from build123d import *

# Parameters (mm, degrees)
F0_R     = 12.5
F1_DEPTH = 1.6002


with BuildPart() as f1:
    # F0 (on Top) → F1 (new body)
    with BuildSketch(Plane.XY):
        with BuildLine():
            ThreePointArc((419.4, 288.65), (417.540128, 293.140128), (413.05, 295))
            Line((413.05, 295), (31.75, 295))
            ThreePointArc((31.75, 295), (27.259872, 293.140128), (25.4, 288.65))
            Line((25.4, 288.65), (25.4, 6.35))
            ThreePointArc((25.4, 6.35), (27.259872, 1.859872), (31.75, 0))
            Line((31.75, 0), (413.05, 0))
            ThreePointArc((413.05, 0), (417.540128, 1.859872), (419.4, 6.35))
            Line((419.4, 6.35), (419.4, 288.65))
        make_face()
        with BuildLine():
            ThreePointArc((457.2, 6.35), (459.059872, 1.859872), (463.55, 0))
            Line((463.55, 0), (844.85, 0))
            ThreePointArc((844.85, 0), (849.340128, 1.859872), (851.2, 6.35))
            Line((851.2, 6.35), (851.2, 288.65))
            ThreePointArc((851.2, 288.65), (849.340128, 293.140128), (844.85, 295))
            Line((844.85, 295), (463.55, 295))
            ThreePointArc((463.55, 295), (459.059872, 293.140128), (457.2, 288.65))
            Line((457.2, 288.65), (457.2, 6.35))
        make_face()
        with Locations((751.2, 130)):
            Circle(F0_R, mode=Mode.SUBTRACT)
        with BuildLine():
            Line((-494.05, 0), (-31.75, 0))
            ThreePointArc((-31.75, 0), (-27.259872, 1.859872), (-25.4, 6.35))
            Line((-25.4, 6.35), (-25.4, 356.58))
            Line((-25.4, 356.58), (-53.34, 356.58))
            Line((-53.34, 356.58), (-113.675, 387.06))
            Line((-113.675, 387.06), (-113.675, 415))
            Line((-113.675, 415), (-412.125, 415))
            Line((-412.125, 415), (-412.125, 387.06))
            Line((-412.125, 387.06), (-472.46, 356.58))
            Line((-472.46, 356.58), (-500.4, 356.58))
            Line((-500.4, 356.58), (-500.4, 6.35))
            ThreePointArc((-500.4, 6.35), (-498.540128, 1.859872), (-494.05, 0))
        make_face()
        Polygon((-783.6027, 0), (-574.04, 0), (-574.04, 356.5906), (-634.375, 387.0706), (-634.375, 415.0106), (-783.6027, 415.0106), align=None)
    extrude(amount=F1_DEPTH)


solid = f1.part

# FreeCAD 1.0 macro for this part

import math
import FreeCAD as App
import Part
import Sketcher
from FreeCAD import Vector
Q = App.Units.Quantity


def add_polygon(sketch, points):
    """Adds a closed chain of lines whose ends are joined by coincident constraints."""
    first, n = sketch.GeometryCount, len(points)
    for a, b in zip(points, points[1:] + points[:1]):
        sketch.addGeometry(Part.LineSegment(App.Vector(*a, 0), App.Vector(*b, 0)), False)
    for i in range(n):
        sketch.addConstraint(Sketcher.Constraint("Coincident", first + i, 2, first + (i + 1) % n, 1))

doc = App.newDocument("Part")
body = doc.addObject("PartDesign::Body", "Body")
body.AllowCompound = True

# Sketch on XY plane
sketch1 = body.newObject("Sketcher::SketchObject", "Sketch")
sketch1.AttachmentSupport = (doc.getObject("XY_Plane"), [""])
sketch1.MapMode = "FlatFace"
sketch1.addGeometry(Part.ArcOfCircle(Part.Circle(Vector(413, 289, 0), Vector(0, 0, 1), 6), math.radians(0), math.radians(90)), False)  # 0
sketch1.addGeometry(Part.LineSegment(Vector(413, 295, 0), Vector(32, 295, 0)), False)  # 1
sketch1.addGeometry(Part.ArcOfCircle(Part.Circle(Vector(32, 289, 0), Vector(0, 0, 1), 6), math.radians(90), math.radians(180)), False)  # 2
sketch1.addGeometry(Part.LineSegment(Vector(25, 289, 0), Vector(25, 6, 0)), False)  # 3
sketch1.addGeometry(Part.ArcOfCircle(Part.Circle(Vector(32, 6, 0), Vector(0, 0, 1), 6), math.radians(-180), math.radians(-90)), False)  # 4
sketch1.addGeometry(Part.LineSegment(Vector(32, 0, 0), Vector(413, 0, 0)), False)  # 5
sketch1.addGeometry(Part.ArcOfCircle(Part.Circle(Vector(413, 6, 0), Vector(0, 0, 1), 6), math.radians(-90), math.radians(0)), False)  # 6
sketch1.addGeometry(Part.LineSegment(Vector(419, 6, 0), Vector(419, 289, 0)), False)  # 7
sketch1.addGeometry(Part.ArcOfCircle(Part.Circle(Vector(464, 6, 0), Vector(0, 0, 1), 6), math.radians(-180), math.radians(-90)), False)  # 8
sketch1.addGeometry(Part.LineSegment(Vector(464, 0, 0), Vector(845, 0, 0)), False)  # 9
sketch1.addGeometry(Part.ArcOfCircle(Part.Circle(Vector(845, 6, 0), Vector(0, 0, 1), 6), math.radians(-90), math.radians(0)), False)  # 10
sketch1.addGeometry(Part.LineSegment(Vector(851, 6, 0), Vector(851, 289, 0)), False)  # 11
sketch1.addGeometry(Part.ArcOfCircle(Part.Circle(Vector(845, 289, 0), Vector(0, 0, 1), 6), math.radians(0), math.radians(90)), False)  # 12
sketch1.addGeometry(Part.LineSegment(Vector(845, 295, 0), Vector(464, 295, 0)), False)  # 13
sketch1.addGeometry(Part.ArcOfCircle(Part.Circle(Vector(464, 289, 0), Vector(0, 0, 1), 6), math.radians(90), math.radians(180)), False)  # 14
sketch1.addGeometry(Part.LineSegment(Vector(457, 289, 0), Vector(457, 6, 0)), False)  # 15
sketch1.addGeometry(Part.Circle(Vector(751, 130, 0), Vector(0, 0, 1), 12), False)  # 16
sketch1.addGeometry(Part.LineSegment(Vector(-494, 0, 0), Vector(-32, 0, 0)), False)  # 17
sketch1.addGeometry(Part.ArcOfCircle(Part.Circle(Vector(-32, 6, 0), Vector(0, 0, 1), 6), math.radians(-90), math.radians(0)), False)  # 18
sketch1.addGeometry(Part.LineSegment(Vector(-25, 6, 0), Vector(-25, 357, 0)), False)  # 19
sketch1.addGeometry(Part.LineSegment(Vector(-25, 357, 0), Vector(-53, 357, 0)), False)  # 20
sketch1.addGeometry(Part.LineSegment(Vector(-53, 357, 0), Vector(-114, 387, 0)), False)  # 21
sketch1.addGeometry(Part.LineSegment(Vector(-114, 387, 0), Vector(-114, 415, 0)), False)  # 22
sketch1.addGeometry(Part.LineSegment(Vector(-114, 415, 0), Vector(-412, 415, 0)), False)  # 23
sketch1.addGeometry(Part.LineSegment(Vector(-412, 415, 0), Vector(-412, 387, 0)), False)  # 24
sketch1.addGeometry(Part.LineSegment(Vector(-412, 387, 0), Vector(-472, 357, 0)), False)  # 25
sketch1.addGeometry(Part.LineSegment(Vector(-472, 357, 0), Vector(-500, 357, 0)), False)  # 26
sketch1.addGeometry(Part.LineSegment(Vector(-500, 357, 0), Vector(-500, 6, 0)), False)  # 27
sketch1.addGeometry(Part.ArcOfCircle(Part.Circle(Vector(-494, 6, 0), Vector(0, 0, 1), 6), math.radians(-180), math.radians(-90)), False)  # 28
add_polygon(sketch1, [(-784, 0), (-574, 0), (-574, 357), (-634, 387), (-634, 415), (-784, 415)])  # lines 29-34
sketch1.addConstraint([
    Sketcher.Constraint("Tangent", 0, 2, 1, 1),
    Sketcher.Constraint("Tangent", 1, 2, 2, 1),
    Sketcher.Constraint("Tangent", 2, 2, 3, 1),
    Sketcher.Constraint("Tangent", 3, 2, 4, 1),
    Sketcher.Constraint("Tangent", 4, 2, 5, 1),
    Sketcher.Constraint("Tangent", 5, 2, 6, 1),
    Sketcher.Constraint("Tangent", 6, 2, 7, 1),
    Sketcher.Constraint("Tangent", 7, 2, 0, 1),
    Sketcher.Constraint("Tangent", 8, 2, 9, 1),
    Sketcher.Constraint("Tangent", 9, 2, 10, 1),
    Sketcher.Constraint("Tangent", 10, 2, 11, 1),
    Sketcher.Constraint("Tangent", 11, 2, 12, 1),
    Sketcher.Constraint("Tangent", 12, 2, 13, 1),
    Sketcher.Constraint("Tangent", 13, 2, 14, 1),
    Sketcher.Constraint("Tangent", 14, 2, 15, 1),
    Sketcher.Constraint("Tangent", 15, 2, 8, 1),
    Sketcher.Constraint("Tangent", 17, 2, 18, 1),
    Sketcher.Constraint("Tangent", 18, 2, 19, 1),
    Sketcher.Constraint("Coincident", 19, 2, 20, 1),
    Sketcher.Constraint("Coincident", 20, 2, 21, 1),
    Sketcher.Constraint("Coincident", 21, 2, 22, 1),
    Sketcher.Constraint("Coincident", 22, 2, 23, 1),
    Sketcher.Constraint("Coincident", 23, 2, 24, 1),
    Sketcher.Constraint("Coincident", 24, 2, 25, 1),
    Sketcher.Constraint("Coincident", 25, 2, 26, 1),
    Sketcher.Constraint("Coincident", 26, 2, 27, 1),
    Sketcher.Constraint("Tangent", 27, 2, 28, 1),
    Sketcher.Constraint("Tangent", 28, 2, 17, 1),
    Sketcher.Constraint("Horizontal", 1),
    Sketcher.Constraint("Vertical", 3),
    Sketcher.Constraint("Horizontal", 5),
    Sketcher.Constraint("Vertical", 7),
    Sketcher.Constraint("Horizontal", 9),
    Sketcher.Constraint("Vertical", 11),
    Sketcher.Constraint("Horizontal", 13),
    Sketcher.Constraint("Vertical", 15),
    Sketcher.Constraint("Horizontal", 17),
    Sketcher.Constraint("Vertical", 19),
    Sketcher.Constraint("Horizontal", 20),
    Sketcher.Constraint("Vertical", 22),
    Sketcher.Constraint("Horizontal", 23),
    Sketcher.Constraint("Vertical", 24),
    Sketcher.Constraint("Horizontal", 26),
    Sketcher.Constraint("Vertical", 27),
    Sketcher.Constraint("Horizontal", 29),
    Sketcher.Constraint("Vertical", 30),
    Sketcher.Constraint("Vertical", 32),
    Sketcher.Constraint("Horizontal", 33),
    Sketcher.Constraint("Vertical", 34),
    Sketcher.Constraint("Equal", 0, 2),
    Sketcher.Constraint("Equal", 2, 4),
    Sketcher.Constraint("Equal", 4, 6),
    Sketcher.Constraint("Equal", 6, 8),
    Sketcher.Constraint("Equal", 8, 10),
    Sketcher.Constraint("Equal", 10, 12),
    Sketcher.Constraint("Equal", 12, 14),
    Sketcher.Constraint("Equal", 14, 18),
    Sketcher.Constraint("Equal", 18, 28),
    Sketcher.Constraint("Symmetric", 4, 2, 17, 2, -1, 1),
    Sketcher.Constraint("PointOnObject", 4, 2, -1),
    Sketcher.Constraint("PointOnObject", 8, 2, -1),
    Sketcher.Constraint("PointOnObject", 29, 2, -1),
    Sketcher.Constraint("Parallel", 21, 31),
    Sketcher.Constraint("Horizontal", 2, 3, 12, 3),
    Sketcher.Constraint("Horizontal", 21, 2, 24, 2),
    Sketcher.Constraint("Horizontal", 20, 2, 25, 2),
    Sketcher.Constraint("Equal", 5, 9),
    Sketcher.Constraint("Equal", 20, 26),
    Sketcher.Constraint("Equal", 26, 22),
    Sketcher.Constraint("Equal", 24, 32),
    Sketcher.Constraint("Equal", 21, 25),
    Sketcher.Constraint("Equal", 25, 31),
    Sketcher.Constraint("Radius", 0, Q("0.25 in")),
    Sketcher.Constraint("DistanceX", 20, 2, 20, 1, Q("1.1 in")),
    Sketcher.Constraint("DistanceX", -1, 1, 2, 2, Q("1 in")),
    Sketcher.Constraint("DistanceX", -1, 1, 14, 2, Q("18 in")),
    Sketcher.Constraint("DistanceX", 23, 2, 23, 1, Q("11.75 in")),
    Sketcher.Constraint("DistanceX", 29, 2, -1, 1, Q("22.6 in")),
    Sketcher.Constraint("DistanceY", 20, 2, 21, 2, Q("1.2 in")),
    Sketcher.Constraint("Diameter", 16, 25.0),
    Sketcher.Constraint("DistanceY", 30, 1, 30, 2, Q("14.039 in")),
    Sketcher.Constraint("DistanceX", 29, 1, 29, 2, Q("8.2505 in")),
    Sketcher.Constraint("DistanceX", 1, 2, 1, 1, 381.3),
    Sketcher.Constraint("DistanceX", 17, 1, 17, 2, 462.3),
    Sketcher.Constraint("DistanceY", 3, 2, 3, 1, 282.3),
    Sketcher.Constraint("DistanceY", 19, 1, 19, 2, 350.23),
    Sketcher.Constraint("DistanceX", -1, 1, 16, 3, 751.2),
    Sketcher.Constraint("DistanceY", -1, 1, 16, 3, 130.0),
])
pad1 = body.newObject("PartDesign::Pad", "Pad")
pad1.Profile = sketch1
pad1.Length = Q("0.063 in")

doc.recompute()
